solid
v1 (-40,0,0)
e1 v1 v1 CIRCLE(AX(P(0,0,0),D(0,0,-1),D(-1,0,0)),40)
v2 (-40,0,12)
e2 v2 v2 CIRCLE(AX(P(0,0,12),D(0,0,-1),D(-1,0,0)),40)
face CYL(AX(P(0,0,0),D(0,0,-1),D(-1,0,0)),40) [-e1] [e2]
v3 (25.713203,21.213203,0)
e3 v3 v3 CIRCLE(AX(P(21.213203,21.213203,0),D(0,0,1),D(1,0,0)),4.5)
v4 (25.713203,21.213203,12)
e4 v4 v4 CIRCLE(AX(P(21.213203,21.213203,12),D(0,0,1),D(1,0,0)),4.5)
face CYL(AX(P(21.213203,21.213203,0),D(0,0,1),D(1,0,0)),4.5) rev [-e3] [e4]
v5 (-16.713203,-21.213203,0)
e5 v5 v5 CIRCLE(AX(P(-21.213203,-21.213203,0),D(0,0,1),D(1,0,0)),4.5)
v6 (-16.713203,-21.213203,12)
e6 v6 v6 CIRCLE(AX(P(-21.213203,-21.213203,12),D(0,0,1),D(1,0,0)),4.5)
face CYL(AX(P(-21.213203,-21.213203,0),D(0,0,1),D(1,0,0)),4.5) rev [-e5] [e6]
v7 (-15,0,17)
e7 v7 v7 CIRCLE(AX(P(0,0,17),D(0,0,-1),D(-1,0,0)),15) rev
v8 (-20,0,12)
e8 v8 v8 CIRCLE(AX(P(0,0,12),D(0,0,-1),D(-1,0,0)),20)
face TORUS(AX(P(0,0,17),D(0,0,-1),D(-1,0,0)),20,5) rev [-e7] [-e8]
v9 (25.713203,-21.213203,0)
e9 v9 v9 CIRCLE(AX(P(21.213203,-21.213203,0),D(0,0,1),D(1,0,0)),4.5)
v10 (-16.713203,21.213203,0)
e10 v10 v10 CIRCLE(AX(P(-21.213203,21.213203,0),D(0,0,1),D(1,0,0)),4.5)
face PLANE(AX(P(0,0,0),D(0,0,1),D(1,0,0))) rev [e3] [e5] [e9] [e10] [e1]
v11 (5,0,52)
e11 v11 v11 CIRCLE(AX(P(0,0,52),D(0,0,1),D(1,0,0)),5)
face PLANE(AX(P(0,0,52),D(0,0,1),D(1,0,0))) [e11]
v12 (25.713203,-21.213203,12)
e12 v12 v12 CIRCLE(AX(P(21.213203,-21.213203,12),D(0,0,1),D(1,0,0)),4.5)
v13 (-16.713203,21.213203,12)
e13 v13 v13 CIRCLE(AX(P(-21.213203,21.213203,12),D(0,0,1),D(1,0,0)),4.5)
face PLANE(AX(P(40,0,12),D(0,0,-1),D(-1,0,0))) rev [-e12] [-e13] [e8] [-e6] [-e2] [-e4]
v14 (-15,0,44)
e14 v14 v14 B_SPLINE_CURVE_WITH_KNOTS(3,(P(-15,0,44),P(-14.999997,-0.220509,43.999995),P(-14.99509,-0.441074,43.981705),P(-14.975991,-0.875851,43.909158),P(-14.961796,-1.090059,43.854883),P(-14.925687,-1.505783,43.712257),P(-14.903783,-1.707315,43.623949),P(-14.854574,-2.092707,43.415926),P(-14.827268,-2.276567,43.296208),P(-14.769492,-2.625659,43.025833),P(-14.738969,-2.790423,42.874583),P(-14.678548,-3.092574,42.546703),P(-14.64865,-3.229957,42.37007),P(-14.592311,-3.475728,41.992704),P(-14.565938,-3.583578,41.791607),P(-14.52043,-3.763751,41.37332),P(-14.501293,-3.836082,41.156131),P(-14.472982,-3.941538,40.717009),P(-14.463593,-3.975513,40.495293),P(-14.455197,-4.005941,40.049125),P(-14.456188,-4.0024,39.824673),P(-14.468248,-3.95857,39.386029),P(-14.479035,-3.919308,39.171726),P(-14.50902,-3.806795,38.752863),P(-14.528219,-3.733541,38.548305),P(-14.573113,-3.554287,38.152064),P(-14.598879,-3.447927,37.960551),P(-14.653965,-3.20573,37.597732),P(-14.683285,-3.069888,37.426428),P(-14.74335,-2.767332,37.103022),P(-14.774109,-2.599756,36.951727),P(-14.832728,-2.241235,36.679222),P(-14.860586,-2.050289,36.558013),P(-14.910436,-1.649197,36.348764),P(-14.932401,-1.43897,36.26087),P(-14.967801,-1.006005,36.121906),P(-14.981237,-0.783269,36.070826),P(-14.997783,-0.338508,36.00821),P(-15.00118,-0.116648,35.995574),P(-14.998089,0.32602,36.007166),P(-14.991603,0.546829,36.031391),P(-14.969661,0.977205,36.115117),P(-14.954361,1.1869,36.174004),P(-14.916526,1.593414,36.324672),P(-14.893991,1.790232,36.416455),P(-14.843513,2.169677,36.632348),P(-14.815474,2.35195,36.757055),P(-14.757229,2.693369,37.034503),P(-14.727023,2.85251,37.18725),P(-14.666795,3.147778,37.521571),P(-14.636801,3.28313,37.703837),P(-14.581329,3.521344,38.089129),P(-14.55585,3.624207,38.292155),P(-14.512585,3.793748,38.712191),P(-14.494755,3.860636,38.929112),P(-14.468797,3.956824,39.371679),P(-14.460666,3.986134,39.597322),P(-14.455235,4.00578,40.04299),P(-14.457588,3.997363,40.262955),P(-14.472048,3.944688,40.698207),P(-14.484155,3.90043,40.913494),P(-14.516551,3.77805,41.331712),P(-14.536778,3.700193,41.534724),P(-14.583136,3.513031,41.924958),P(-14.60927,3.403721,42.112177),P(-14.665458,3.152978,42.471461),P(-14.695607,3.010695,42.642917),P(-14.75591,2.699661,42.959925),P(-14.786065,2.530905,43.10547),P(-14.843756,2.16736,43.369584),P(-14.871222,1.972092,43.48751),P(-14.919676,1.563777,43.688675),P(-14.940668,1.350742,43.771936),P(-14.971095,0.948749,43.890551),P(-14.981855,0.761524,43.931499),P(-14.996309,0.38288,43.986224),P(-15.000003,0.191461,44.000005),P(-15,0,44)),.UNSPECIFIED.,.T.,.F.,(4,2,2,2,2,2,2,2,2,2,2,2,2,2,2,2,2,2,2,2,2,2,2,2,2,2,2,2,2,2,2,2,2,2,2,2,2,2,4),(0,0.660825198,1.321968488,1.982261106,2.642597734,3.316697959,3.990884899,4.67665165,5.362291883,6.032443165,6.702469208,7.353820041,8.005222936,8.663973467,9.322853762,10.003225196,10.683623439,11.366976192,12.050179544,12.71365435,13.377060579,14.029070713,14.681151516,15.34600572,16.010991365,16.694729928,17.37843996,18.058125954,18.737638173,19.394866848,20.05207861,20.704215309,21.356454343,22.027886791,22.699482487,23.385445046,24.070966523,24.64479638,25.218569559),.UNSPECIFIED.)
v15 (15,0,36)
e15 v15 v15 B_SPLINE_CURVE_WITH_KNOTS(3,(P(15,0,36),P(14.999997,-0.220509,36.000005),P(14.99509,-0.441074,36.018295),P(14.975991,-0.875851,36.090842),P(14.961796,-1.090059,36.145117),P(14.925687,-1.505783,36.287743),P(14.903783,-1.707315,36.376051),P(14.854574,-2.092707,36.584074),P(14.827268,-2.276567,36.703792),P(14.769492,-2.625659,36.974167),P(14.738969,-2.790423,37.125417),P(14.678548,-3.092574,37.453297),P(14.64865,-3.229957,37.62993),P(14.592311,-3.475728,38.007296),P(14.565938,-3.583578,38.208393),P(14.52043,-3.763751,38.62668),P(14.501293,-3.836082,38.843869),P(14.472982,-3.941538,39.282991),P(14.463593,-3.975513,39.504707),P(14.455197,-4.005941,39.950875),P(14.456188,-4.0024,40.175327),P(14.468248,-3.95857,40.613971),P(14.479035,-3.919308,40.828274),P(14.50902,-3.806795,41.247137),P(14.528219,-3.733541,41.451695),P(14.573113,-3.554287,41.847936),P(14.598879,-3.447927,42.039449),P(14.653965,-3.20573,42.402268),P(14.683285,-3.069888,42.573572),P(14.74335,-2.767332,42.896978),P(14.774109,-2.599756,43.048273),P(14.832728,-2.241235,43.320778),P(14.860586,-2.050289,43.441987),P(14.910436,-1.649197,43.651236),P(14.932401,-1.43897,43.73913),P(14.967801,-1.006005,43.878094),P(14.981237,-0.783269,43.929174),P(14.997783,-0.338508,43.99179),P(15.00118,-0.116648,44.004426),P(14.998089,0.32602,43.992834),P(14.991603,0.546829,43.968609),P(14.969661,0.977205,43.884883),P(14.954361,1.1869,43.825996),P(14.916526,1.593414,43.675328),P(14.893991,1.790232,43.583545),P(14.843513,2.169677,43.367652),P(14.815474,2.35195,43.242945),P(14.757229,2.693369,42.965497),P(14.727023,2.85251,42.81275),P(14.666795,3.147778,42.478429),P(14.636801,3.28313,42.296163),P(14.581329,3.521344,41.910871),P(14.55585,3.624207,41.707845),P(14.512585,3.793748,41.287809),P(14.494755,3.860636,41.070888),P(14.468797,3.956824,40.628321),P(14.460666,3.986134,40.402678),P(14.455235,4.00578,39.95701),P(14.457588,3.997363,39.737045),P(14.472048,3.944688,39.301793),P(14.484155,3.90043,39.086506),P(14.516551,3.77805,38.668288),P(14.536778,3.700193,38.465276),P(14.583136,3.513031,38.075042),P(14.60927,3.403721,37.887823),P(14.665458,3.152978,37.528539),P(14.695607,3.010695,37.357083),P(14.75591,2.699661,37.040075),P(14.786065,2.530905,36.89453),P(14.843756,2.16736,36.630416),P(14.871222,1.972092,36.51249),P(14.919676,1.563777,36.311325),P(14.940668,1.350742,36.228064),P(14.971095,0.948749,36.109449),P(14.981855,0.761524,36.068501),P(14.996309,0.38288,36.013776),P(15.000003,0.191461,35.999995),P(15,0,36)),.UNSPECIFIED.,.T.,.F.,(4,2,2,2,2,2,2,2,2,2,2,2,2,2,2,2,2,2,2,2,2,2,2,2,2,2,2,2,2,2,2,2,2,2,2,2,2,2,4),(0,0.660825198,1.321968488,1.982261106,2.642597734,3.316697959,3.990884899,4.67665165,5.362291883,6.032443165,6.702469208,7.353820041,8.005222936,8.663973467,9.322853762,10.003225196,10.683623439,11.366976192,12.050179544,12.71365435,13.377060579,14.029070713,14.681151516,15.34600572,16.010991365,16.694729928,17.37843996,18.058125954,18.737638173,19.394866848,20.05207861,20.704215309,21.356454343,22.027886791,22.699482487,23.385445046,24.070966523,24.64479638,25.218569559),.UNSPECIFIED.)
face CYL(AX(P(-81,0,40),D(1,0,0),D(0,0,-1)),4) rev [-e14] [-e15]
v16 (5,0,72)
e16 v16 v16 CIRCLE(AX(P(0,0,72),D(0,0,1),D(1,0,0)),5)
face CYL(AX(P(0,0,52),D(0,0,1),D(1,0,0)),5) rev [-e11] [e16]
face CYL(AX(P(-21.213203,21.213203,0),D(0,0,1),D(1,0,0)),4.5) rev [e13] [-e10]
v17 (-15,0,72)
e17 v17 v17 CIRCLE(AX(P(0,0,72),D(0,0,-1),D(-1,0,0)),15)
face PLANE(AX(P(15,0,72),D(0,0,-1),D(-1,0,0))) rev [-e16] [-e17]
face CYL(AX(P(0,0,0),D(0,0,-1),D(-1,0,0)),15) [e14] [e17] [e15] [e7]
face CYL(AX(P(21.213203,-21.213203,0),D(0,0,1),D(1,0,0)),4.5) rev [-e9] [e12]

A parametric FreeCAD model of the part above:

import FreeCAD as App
import Part
import Sketcher
Q = App.Units.Quantity


def edges_at(feature, points):
    """Names of the edges that pass closest to the given points."""
    edges = feature.Shape.Edges
    near = lambda p: min(range(len(edges)), key=lambda i: edges[i].distToShape(Part.Vertex(*p))[0])
    return sorted({f"Edge{near(p) + 1}" for p in points})


def add_polygon(sketch, points):
    """Adds a closed chain of lines whose ends are joined by coincident constraints."""
    first, n = sketch.GeometryCount, len(points)
    for a, b in zip(points, points[1:] + points[:1]):
        sketch.addGeometry(Part.LineSegment(App.Vector(*a, 0), App.Vector(*b, 0)), False)
    for i in range(n):
        sketch.addConstraint(Sketcher.Constraint("Coincident", first + i, 2, first + (i + 1) % n, 1))

doc = App.newDocument("Part")
body = doc.addObject("PartDesign::Body", "Body")

# Sketch on XZ plane
sketch1 = doc.addObject("Sketcher::SketchObject", "Sketch")
body.addObject(sketch1)
sketch1.AttachmentSupport = (doc.XZ_Plane, [""])
sketch1.MapMode = "FlatFace"
add_polygon(sketch1, [(40, 0), (0, 0), (0, 72), (15, 72), (15, 12), (40, 12)])  # lines 0-5
sketch1.addConstraint([
    Sketcher.Constraint("Horizontal", 0),
    Sketcher.Constraint("Vertical", 1),
    Sketcher.Constraint("Horizontal", 2),
    Sketcher.Constraint("Vertical", 3),
    Sketcher.Constraint("Horizontal", 4),
    Sketcher.Constraint("Vertical", 5),
    Sketcher.Constraint("Coincident", 0, 2, -1, 1),
    Sketcher.Constraint("DistanceX", 0, 2, 0, 1, Q("40 mm")),
    Sketcher.Constraint("DistanceX", 2, 1, 2, 2, Q("15 mm")),
    Sketcher.Constraint("DistanceY", 1, 1, 1, 2, Q("72 mm")),
    Sketcher.Constraint("DistanceY", 3, 2, 3, 1, Q("60 mm")),
])
revolution = doc.addObject("PartDesign::Revolution", "Revolution")
body.addObject(revolution)
revolution.Profile = sketch1
revolution.ReferenceAxis = (sketch1, ["V_Axis"])
revolution.Angle = 360

# Sketch on XY plane
sketch2 = doc.addObject("Sketcher::SketchObject", "Sketch001")
body.addObject(sketch2)
sketch2.AttachmentSupport = (doc.XY_Plane, [""])
sketch2.MapMode = "FlatFace"
sketch2.AttachmentOffset = App.Placement(App.Vector(0, 0, 72), App.Rotation())
sketch2.addGeometry(Part.Circle(App.Vector(0, 0, 0), App.Vector(0, 0, 1), 5), False)
sketch2.addConstraint([
    Sketcher.Constraint("Coincident", 0, 3, -1, 1),
    Sketcher.Constraint("Diameter", 0, Q("10 mm")),
])
pocket1 = doc.addObject("PartDesign::Pocket", "Pocket")
body.addObject(pocket1)
pocket1.Profile = sketch2
pocket1.Length = 20

# Sketch on YZ plane
sketch3 = doc.addObject("Sketcher::SketchObject", "Sketch002")
body.addObject(sketch3)
sketch3.AttachmentSupport = (doc.YZ_Plane, [""])
sketch3.MapMode = "FlatFace"
sketch3.addGeometry(Part.Circle(App.Vector(0, 40, 0), App.Vector(0, 0, 1), 4), False)
sketch3.addConstraint([
    Sketcher.Constraint("PointOnObject", 0, 3, -2),
    Sketcher.Constraint("Diameter", 0, Q("8 mm")),
    Sketcher.Constraint("DistanceY", -1, 1, 0, 3, Q("40 mm")),
])
pocket2 = doc.addObject("PartDesign::Pocket", "Pocket001")
body.addObject(pocket2)
pocket2.Profile = sketch3
pocket2.Length = 162
pocket2.Midplane = True

# Sketch on XY plane
sketch4 = doc.addObject("Sketcher::SketchObject", "Sketch003")
body.addObject(sketch4)
sketch4.AttachmentSupport = (doc.XY_Plane, [""])
sketch4.MapMode = "FlatFace"
sketch4.AttachmentOffset = App.Placement(App.Vector(0, 0, 12), App.Rotation())
sketch4.addGeometry([
    Part.Circle(App.Vector(21.2, 21.2, 0), App.Vector(0, 0, 1), 4.5),
    Part.Circle(App.Vector(-21.2, 21.2, 0), App.Vector(0, 0, 1), 4.5),
    Part.Circle(App.Vector(-21.2, -21.2, 0), App.Vector(0, 0, 1), 4.5),
    Part.Circle(App.Vector(21.2, -21.2, 0), App.Vector(0, 0, 1), 4.5),
], False)
sketch4.addConstraint([
    Sketcher.Constraint("Equal", 0, 1),
    Sketcher.Constraint("Equal", 1, 2),
    Sketcher.Constraint("Equal", 2, 3),
    Sketcher.Constraint("Symmetric", 0, 3, 2, 3, -1, 1),
    Sketcher.Constraint("Symmetric", 1, 3, 3, 3, -1, 1),
    Sketcher.Constraint("Symmetric", 0, 3, 1, 3, -2),
    Sketcher.Constraint("Diameter", 0, Q("9 mm")),
    Sketcher.Constraint("DistanceX", -1, 1, 0, 3, Q("21.213203 mm")),
    Sketcher.Constraint("DistanceY", -1, 1, 0, 3, Q("21.213203 mm")),
])
pocket3 = doc.addObject("PartDesign::Pocket", "Pocket002")
body.addObject(pocket3)
pocket3.Profile = sketch4
pocket3.Type = "ThroughAll"
doc.recompute()

fillet = doc.addObject("PartDesign::Fillet", "Fillet")
body.addObject(fillet)
fillet.Base = (pocket3, edges_at(pocket3, [(15, 0, 12)]))
fillet.Radius = 5

doc.recompute()
